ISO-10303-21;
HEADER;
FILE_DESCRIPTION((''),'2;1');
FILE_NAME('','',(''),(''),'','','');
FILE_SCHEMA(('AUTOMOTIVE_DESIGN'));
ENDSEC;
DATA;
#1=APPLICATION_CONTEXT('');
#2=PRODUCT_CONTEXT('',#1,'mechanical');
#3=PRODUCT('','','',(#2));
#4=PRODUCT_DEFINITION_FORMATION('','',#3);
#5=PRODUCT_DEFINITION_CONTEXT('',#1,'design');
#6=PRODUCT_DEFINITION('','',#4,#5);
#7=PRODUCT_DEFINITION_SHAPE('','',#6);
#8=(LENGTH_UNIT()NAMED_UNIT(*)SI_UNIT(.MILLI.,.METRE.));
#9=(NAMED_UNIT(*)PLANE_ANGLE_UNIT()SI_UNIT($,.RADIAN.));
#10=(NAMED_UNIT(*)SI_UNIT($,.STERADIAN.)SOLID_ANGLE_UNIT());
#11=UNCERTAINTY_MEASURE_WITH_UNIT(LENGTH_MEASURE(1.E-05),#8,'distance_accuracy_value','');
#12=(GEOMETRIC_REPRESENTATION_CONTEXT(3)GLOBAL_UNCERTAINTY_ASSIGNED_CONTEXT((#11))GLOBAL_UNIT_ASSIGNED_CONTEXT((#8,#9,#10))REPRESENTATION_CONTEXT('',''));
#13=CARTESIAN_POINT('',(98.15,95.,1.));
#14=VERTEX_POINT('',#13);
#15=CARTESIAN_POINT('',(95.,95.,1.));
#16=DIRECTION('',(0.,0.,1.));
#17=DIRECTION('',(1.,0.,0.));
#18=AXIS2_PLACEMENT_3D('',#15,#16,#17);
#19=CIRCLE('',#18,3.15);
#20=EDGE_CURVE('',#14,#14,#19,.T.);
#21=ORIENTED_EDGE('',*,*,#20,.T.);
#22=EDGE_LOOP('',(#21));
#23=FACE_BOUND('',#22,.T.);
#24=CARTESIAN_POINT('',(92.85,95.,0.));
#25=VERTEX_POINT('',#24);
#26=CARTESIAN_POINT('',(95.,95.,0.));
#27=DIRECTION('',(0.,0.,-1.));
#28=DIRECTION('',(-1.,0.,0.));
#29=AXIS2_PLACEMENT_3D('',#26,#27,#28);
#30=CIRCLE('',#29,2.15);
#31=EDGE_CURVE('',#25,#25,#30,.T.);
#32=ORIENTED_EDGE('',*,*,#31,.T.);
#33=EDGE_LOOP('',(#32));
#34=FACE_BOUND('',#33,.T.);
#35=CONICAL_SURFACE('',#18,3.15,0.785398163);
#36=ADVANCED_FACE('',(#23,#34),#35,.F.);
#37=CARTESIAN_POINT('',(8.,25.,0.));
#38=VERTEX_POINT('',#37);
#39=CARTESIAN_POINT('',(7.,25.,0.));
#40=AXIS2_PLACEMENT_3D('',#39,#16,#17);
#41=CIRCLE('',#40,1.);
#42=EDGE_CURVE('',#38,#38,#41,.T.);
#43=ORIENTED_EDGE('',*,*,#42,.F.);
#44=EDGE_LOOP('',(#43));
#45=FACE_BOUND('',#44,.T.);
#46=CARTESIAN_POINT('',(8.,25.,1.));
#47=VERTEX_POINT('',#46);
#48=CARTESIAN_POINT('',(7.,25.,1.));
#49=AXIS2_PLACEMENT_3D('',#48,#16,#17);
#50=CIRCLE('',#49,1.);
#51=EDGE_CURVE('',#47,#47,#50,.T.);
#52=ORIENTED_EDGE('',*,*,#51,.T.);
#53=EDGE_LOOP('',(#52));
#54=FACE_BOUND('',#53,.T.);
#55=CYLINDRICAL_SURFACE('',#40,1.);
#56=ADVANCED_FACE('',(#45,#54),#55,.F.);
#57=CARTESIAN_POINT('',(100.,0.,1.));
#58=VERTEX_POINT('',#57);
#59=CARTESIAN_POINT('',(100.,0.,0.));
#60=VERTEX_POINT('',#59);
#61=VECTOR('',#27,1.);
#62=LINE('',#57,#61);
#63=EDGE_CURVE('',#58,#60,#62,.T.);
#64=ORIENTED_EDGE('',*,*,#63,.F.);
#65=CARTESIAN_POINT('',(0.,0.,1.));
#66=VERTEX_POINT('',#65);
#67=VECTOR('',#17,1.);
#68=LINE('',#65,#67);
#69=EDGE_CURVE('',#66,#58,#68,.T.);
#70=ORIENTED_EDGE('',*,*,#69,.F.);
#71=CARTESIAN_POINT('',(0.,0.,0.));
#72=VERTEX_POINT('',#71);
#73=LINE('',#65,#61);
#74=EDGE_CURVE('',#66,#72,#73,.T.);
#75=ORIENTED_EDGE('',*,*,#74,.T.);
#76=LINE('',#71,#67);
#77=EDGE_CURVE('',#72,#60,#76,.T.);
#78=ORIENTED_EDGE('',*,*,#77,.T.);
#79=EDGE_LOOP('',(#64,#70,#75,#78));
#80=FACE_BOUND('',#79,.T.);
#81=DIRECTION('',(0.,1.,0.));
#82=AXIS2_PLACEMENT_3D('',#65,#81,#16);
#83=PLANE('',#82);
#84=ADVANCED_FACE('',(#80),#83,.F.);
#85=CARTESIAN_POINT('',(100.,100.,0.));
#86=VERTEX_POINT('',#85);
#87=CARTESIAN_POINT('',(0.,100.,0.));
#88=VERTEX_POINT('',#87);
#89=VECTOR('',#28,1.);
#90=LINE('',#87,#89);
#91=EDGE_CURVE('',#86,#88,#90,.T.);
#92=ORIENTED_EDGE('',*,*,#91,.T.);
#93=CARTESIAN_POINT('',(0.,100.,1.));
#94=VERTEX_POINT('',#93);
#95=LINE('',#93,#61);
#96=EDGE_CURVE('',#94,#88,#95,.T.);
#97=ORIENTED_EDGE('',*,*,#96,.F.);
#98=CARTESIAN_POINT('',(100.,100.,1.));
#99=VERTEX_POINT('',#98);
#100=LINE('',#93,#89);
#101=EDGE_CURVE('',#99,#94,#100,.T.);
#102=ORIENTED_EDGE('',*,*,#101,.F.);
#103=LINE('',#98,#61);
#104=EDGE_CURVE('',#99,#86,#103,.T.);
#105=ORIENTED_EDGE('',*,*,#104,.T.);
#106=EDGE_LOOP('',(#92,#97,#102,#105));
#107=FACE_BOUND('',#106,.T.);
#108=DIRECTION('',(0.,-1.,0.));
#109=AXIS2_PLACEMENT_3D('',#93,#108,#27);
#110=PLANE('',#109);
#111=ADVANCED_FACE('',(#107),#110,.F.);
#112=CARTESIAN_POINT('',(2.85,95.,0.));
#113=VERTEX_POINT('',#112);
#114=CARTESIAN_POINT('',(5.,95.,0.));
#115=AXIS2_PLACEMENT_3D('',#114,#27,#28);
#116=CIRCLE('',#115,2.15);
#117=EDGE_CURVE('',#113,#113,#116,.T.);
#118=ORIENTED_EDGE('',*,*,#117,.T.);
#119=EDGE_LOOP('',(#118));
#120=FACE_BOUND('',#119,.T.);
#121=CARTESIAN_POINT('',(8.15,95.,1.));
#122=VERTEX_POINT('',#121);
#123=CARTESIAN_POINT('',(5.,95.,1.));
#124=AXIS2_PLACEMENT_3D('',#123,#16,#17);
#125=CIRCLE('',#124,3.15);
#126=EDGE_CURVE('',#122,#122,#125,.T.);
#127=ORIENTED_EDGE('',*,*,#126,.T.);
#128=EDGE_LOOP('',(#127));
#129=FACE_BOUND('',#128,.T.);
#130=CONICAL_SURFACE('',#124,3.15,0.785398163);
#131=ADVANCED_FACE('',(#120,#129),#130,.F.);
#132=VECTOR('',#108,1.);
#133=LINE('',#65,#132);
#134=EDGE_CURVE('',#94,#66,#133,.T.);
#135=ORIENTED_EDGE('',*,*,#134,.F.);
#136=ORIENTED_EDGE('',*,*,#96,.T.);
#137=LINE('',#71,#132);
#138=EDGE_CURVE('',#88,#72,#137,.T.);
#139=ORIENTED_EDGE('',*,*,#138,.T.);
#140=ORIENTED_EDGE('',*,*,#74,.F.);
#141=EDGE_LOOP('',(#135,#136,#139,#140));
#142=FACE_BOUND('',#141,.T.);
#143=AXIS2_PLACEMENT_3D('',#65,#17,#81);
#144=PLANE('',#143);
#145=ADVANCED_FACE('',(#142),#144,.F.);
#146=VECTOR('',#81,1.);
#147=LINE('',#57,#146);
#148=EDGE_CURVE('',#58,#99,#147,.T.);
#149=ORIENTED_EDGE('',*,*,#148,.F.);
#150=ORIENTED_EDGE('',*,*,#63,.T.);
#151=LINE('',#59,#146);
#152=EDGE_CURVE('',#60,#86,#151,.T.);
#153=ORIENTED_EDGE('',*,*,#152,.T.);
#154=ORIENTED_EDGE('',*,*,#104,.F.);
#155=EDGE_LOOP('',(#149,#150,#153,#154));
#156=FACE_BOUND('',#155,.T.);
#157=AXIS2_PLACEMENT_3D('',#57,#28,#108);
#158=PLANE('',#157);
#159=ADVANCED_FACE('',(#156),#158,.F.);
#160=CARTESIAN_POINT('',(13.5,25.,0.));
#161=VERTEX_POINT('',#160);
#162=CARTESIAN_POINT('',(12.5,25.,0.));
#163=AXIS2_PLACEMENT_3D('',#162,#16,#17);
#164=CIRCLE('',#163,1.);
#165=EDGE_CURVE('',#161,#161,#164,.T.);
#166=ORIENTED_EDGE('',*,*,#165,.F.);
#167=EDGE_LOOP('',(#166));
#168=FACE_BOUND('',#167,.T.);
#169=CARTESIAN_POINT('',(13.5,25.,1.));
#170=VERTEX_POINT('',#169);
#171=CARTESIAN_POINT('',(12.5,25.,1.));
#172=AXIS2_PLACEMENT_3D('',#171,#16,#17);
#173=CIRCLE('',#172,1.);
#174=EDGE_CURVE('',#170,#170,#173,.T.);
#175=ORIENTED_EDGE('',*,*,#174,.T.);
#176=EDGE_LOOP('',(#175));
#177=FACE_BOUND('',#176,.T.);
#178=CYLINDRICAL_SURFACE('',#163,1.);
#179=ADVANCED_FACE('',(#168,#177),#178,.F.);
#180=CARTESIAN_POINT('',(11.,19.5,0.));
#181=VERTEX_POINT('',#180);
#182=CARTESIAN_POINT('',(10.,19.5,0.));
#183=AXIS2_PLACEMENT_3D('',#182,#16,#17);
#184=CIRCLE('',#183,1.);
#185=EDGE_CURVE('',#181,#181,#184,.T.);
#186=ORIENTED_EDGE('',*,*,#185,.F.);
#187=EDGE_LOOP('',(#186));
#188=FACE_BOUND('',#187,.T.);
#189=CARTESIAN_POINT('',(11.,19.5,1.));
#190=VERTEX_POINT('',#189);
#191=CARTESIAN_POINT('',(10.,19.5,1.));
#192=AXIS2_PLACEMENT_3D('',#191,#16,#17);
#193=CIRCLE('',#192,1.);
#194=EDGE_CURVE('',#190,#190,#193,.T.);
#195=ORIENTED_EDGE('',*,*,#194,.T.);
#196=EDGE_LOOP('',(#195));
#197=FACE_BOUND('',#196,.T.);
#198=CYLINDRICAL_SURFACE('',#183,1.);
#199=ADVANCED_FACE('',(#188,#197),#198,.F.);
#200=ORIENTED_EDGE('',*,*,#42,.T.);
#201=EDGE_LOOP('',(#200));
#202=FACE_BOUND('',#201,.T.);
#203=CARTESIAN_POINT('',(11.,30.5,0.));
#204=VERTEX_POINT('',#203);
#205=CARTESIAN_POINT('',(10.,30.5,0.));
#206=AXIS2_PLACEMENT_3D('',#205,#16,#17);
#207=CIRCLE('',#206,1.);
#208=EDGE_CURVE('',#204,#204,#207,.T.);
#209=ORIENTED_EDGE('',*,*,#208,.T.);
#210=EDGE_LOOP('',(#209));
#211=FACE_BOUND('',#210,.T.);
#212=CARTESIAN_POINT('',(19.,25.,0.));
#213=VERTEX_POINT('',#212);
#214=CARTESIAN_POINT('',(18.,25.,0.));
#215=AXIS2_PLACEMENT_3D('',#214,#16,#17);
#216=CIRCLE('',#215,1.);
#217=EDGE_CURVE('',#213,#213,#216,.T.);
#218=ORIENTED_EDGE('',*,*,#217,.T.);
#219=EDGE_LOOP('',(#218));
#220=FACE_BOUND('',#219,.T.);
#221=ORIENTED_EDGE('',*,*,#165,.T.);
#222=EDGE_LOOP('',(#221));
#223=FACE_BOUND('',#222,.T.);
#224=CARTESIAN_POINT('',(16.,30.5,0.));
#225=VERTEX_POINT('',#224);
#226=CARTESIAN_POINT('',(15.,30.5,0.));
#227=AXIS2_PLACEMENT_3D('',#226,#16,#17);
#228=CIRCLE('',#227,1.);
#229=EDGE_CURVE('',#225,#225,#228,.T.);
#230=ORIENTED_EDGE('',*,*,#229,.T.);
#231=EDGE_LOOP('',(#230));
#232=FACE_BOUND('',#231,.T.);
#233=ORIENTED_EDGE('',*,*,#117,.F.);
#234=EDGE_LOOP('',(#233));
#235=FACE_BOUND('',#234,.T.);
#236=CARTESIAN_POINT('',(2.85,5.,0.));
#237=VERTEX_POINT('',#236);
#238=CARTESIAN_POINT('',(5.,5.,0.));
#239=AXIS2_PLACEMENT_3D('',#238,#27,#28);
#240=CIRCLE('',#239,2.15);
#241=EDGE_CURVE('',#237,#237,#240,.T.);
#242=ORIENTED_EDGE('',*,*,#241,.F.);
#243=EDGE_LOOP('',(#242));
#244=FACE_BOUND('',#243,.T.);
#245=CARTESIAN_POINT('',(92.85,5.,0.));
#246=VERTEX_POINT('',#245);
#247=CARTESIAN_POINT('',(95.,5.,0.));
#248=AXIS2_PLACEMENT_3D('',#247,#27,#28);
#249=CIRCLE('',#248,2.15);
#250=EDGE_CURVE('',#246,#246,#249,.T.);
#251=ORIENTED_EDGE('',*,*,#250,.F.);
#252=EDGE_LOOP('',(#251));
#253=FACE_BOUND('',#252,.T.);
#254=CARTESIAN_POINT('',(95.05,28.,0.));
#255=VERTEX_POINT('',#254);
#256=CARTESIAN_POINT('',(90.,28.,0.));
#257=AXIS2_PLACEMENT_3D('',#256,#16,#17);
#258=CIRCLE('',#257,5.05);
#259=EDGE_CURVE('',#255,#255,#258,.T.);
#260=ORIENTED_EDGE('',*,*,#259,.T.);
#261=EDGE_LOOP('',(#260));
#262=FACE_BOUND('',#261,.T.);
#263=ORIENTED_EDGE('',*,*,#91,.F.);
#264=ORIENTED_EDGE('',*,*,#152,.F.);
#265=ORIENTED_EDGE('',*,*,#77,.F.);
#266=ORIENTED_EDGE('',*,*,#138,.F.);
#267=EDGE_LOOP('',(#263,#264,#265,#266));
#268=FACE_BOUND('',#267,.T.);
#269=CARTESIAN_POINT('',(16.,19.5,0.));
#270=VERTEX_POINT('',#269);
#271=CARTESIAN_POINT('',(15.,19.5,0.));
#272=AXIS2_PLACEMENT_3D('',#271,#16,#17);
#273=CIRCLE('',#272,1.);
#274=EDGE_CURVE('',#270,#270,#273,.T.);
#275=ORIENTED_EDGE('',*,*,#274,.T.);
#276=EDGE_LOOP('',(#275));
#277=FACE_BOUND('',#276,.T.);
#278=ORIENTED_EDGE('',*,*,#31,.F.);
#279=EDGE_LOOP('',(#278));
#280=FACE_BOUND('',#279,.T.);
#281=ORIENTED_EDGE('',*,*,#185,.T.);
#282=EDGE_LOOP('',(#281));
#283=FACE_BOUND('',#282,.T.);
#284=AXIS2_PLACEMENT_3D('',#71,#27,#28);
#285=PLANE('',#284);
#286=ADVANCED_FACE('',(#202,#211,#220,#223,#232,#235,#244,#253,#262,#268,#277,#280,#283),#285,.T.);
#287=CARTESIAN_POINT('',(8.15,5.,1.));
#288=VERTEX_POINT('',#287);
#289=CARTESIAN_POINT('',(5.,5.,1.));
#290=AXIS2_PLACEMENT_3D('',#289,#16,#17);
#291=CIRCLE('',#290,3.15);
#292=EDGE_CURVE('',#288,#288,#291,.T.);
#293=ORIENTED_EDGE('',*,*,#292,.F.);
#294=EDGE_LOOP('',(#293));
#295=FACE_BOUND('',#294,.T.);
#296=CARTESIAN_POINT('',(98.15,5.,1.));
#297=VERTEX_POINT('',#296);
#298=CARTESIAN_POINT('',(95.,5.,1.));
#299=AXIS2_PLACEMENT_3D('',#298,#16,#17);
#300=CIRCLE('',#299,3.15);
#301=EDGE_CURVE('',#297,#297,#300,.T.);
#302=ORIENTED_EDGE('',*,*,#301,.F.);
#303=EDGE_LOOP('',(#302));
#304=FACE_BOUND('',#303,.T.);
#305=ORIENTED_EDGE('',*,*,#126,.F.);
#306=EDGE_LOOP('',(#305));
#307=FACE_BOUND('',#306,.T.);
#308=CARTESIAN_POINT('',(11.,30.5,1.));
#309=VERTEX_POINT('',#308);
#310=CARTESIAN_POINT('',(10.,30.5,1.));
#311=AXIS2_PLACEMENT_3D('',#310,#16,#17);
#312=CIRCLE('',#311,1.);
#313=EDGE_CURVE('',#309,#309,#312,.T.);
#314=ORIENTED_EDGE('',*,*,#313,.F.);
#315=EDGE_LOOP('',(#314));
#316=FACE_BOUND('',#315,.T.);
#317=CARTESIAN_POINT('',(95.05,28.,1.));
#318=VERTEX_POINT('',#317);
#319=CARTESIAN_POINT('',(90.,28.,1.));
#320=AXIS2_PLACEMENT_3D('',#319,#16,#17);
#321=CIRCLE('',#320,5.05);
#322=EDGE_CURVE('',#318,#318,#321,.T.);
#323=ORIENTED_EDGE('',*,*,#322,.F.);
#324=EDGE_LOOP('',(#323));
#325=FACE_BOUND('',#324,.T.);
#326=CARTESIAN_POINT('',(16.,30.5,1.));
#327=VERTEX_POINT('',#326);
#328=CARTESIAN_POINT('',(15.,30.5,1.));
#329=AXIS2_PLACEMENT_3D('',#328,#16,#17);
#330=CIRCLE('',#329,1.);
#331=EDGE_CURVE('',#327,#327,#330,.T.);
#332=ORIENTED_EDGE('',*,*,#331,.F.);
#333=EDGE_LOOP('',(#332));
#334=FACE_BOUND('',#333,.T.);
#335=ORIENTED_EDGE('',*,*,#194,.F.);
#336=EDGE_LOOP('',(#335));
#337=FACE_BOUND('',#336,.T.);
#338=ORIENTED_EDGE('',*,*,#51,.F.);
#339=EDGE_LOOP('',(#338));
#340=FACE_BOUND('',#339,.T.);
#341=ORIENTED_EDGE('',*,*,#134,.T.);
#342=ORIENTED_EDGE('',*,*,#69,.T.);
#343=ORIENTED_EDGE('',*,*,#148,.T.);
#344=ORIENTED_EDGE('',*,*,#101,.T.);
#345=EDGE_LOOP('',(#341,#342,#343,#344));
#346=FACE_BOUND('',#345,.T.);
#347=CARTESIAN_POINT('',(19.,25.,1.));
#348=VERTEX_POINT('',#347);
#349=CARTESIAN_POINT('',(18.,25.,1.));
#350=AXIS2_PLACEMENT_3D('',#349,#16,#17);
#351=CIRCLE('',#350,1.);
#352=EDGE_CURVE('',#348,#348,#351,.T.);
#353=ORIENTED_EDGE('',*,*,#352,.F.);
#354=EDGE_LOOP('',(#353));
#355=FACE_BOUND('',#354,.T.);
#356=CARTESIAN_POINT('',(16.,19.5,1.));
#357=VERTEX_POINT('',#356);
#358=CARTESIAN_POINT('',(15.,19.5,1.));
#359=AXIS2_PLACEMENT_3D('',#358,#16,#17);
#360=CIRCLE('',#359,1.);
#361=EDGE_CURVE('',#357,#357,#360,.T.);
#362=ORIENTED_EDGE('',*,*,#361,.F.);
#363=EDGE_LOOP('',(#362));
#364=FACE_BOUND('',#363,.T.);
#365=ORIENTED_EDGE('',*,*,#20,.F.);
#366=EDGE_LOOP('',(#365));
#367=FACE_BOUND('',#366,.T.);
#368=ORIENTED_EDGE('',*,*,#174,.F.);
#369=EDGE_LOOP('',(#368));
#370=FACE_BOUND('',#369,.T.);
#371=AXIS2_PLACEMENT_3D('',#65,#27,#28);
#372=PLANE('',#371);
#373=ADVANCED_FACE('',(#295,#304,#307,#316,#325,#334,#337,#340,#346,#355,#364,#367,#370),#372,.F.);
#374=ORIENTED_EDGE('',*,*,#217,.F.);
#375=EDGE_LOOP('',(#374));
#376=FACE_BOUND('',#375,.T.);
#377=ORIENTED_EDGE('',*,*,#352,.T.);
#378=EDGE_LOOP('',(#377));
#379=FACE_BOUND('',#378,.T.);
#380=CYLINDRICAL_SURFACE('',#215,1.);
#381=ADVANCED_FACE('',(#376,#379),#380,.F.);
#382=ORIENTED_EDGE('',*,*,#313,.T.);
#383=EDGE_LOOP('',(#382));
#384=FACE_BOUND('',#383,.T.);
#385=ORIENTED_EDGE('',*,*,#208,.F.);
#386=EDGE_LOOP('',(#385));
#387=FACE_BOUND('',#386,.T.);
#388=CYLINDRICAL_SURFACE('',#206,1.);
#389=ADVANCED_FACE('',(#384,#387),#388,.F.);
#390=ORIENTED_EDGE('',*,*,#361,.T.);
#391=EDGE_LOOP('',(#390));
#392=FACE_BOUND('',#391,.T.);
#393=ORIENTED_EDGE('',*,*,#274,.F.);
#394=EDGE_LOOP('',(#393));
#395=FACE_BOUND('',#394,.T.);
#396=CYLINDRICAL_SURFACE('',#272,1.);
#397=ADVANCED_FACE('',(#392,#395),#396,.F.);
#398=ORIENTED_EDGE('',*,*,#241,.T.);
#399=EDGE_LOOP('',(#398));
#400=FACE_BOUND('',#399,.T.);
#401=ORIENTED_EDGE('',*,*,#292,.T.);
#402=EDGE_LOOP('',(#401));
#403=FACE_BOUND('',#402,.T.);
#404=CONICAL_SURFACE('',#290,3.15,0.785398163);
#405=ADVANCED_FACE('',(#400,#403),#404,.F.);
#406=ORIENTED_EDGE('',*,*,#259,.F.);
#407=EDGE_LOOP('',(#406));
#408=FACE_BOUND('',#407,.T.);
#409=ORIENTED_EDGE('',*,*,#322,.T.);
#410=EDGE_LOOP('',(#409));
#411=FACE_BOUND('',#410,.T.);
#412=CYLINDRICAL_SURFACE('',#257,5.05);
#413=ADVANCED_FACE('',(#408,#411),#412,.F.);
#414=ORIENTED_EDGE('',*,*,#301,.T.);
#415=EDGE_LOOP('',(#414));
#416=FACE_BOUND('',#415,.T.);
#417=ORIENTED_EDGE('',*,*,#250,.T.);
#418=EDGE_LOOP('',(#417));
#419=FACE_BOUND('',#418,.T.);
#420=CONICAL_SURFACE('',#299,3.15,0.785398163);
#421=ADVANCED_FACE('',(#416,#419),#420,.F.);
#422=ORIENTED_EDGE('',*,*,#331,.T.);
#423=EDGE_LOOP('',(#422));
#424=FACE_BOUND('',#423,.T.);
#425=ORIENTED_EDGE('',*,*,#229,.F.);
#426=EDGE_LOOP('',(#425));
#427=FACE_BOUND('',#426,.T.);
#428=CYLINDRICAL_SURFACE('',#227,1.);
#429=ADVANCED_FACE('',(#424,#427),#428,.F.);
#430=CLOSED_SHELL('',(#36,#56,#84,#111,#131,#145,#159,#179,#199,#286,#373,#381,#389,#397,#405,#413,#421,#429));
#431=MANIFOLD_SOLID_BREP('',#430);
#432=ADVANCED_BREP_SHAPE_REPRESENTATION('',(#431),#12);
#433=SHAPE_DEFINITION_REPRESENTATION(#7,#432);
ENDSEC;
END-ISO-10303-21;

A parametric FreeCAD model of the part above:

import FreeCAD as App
import Part
import Sketcher

V = App.Vector
Q = App.Units.Quantity


def add_polygon(sketch, points):
    """Adds a closed chain of lines whose ends are joined by coincident constraints."""
    first, n = sketch.GeometryCount, len(points)
    for a, b in zip(points, points[1:] + points[:1]):
        sketch.addGeometry(Part.LineSegment(App.Vector(*a, 0), App.Vector(*b, 0)), False)
    for i in range(n):
        sketch.addConstraint(Sketcher.Constraint("Coincident", first + i, 2, first + (i + 1) % n, 1))

doc = App.newDocument("Part")
params = doc.addObject("Spreadsheet::Sheet", "Params")
for row, (alias, value) in enumerate([
    ("sketch1_width", "100 mm"),
    ("pad1_length", "1 mm"),
    ("sketch2_height", "1 mm"),
    ("sketch2_width", "1.8 mm"),
    ("sketch2_width2", "3.15 mm"),
    ("groove_angle", "360 deg"),
    ("linearpattern_pitch", "90 mm"),
    ("linearpattern2_pitch", "127.279221 mm"),
    ("linearpattern3_pitch", "90 mm"),
    ("sketch3_diameter", "2 mm"),
    ("sketch3_diameter2", "10.1 mm"),
], start=1):
    params.set(f"A{row}", alias)
    params.set(f"B{row}", "=" + value)
    params.setAlias(f"B{row}", alias)

body = doc.addObject("PartDesign::Body", "Body")

# Sketch on XY plane
sketch1 = body.newObject("Sketcher::SketchObject", "Sketch")
sketch1.AttachmentSupport = (doc.getObject("XY_Plane"), [""])
sketch1.MapMode = "FlatFace"
add_polygon(sketch1, [(0, 100), (0, 0), (100, 0), (100, 100)])  # lines 0-3
sketch1.addConstraint([
    Sketcher.Constraint("Vertical", 0),
    Sketcher.Constraint("Horizontal", 1),
    Sketcher.Constraint("Vertical", 2),
    Sketcher.Constraint("Horizontal", 3),
    Sketcher.Constraint("Coincident", 0, 2, -1, 1),
    Sketcher.Constraint("Equal", 3, 0),
    Sketcher.Constraint("DistanceX", 1, 1, 1, 2, 100.0),
])
sketch1.setExpression("Constraints[10]", "Params.sketch1_width")
pad1 = body.newObject("PartDesign::Pad", "Pad")
pad1.Profile = sketch1
pad1.setExpression("Length", "Params.pad1_length")

# Sketch on YZ plane
sketch2 = body.newObject("Sketcher::SketchObject", "Sketch001")
sketch2.AttachmentSupport = (doc.getObject("YZ_Plane"), [""])
sketch2.MapMode = "FlatFace"
sketch2.AttachmentOffset = App.Placement(V(0, 0, 5), App.Rotation())
add_polygon(sketch2, [(95, 0), (95, 1), (91.85, 1), (93.2, -0.35), (93.2, 0)])  # lines 0-4
sketch2.addGeometry(Part.LineSegment(V(95, 1, 0), V(95, -0.35, 0)), True)  # axis
sketch2.addConstraint([
    Sketcher.Constraint("Vertical", 0),
    Sketcher.Constraint("Horizontal", 1),
    Sketcher.Constraint("Vertical", 3),
    Sketcher.Constraint("Horizontal", 4),
    Sketcher.Constraint("Vertical", 5),
    Sketcher.Constraint("Coincident", 5, 1, 0, 2),
    Sketcher.Constraint("PointOnObject", 3, 2, -1),
    Sketcher.Constraint("Horizontal", 2, 2, 5, 2),
    Sketcher.Constraint("DistanceY", 0, 1, 0, 2, 1.0),
    Sketcher.Constraint("Angle", 2, Q("-45 deg")),
    Sketcher.Constraint("DistanceX", 4, 1, 4, 2, 1.8),
    Sketcher.Constraint("DistanceX", -1, 1, 0, 2, 95.0),
    Sketcher.Constraint("DistanceX", 1, 2, 1, 1, 3.15),
])
sketch2.setExpression("Constraints[13]", "Params.sketch2_height")
sketch2.setExpression("Constraints[15]", "Params.sketch2_width")
sketch2.setExpression("Constraints[17]", "Params.sketch2_width2")
groove = body.newObject("PartDesign::Groove", "Groove")
groove.Profile = sketch2
groove.ReferenceAxis = (sketch2, ["Axis0"])
groove.setExpression("Angle", "Params.groove_angle")
doc.recompute()

linearpattern = body.newObject("PartDesign::LinearPattern", "LinearPattern")
linearpattern.Originals = [groove]
linearpattern.Direction = (doc.getObject("X_Axis"), [""])
linearpattern.Mode = "offset"
linearpattern.setExpression("Offset", "Params.linearpattern_pitch")
linearpattern.Occurrences = 2
body.Tip = linearpattern
doc.recompute()

datumline = body.newObject("PartDesign::Line", "DatumLine")
datumline.Placement = App.Placement(V(0, 0, 0), App.Rotation(V(0, 0, 1), V(0.707106781, -0.707106781, 0)))
linearpattern2 = body.newObject("PartDesign::LinearPattern", "LinearPattern001")
linearpattern2.Originals = [groove]
linearpattern2.Direction = (datumline, [""])
linearpattern2.Mode = "offset"
linearpattern2.setExpression("Offset", "Params.linearpattern2_pitch")
linearpattern2.Occurrences = 2
body.Tip = linearpattern2
doc.recompute()

linearpattern3 = body.newObject("PartDesign::LinearPattern", "LinearPattern002")
linearpattern3.Originals = [groove]
linearpattern3.Direction = (doc.getObject("Y_Axis"), [""])
linearpattern3.Mode = "offset"
linearpattern3.setExpression("Offset", "Params.linearpattern3_pitch")
linearpattern3.Occurrences = 2
linearpattern3.Reversed = True
body.Tip = linearpattern3

# Sketch on XY plane
sketch3 = body.newObject("Sketcher::SketchObject", "Sketch002")
sketch3.AttachmentSupport = (doc.getObject("XY_Plane"), [""])
sketch3.MapMode = "FlatFace"
sketch3.AttachmentOffset = App.Placement(V(0, 0, 1), App.Rotation())
sketch3.addGeometry([
    Part.Circle(V(90, 28, 0), V(0, 0, 1), 5),  # 0
    Part.Circle(V(12.5, 25, 0), V(0, 0, 1), 1),  # 1
    Part.Circle(V(10, 19.5, 0), V(0, 0, 1), 1),  # 2
    Part.Circle(V(7, 25, 0), V(0, 0, 1), 1),  # 3
    Part.Circle(V(18, 25, 0), V(0, 0, 1), 1),  # 4
    Part.Circle(V(10, 30.5, 0), V(0, 0, 1), 1),  # 5
    Part.Circle(V(15, 30.5, 0), V(0, 0, 1), 1),  # 6
    Part.Circle(V(15, 19.5, 0), V(0, 0, 1), 1),  # 7
], False)
sketch3.addConstraint([
    Sketcher.Constraint("Equal", 1, 2),
    Sketcher.Constraint("Equal", 2, 3),
    Sketcher.Constraint("Equal", 3, 4),
    Sketcher.Constraint("Equal", 4, 5),
    Sketcher.Constraint("Equal", 5, 6),
    Sketcher.Constraint("Equal", 6, 7),
    Sketcher.Constraint("Horizontal", 1, 3, 3, 3),
    Sketcher.Constraint("Horizontal", 3, 3, 4, 3),
    Sketcher.Constraint("Horizontal", 5, 3, 6, 3),
    Sketcher.Constraint("Horizontal", 2, 3, 7, 3),
    Sketcher.Constraint("Vertical", 2, 3, 5, 3),
    Sketcher.Constraint("Vertical", 6, 3, 7, 3),
    Sketcher.Constraint("Diameter", 1, 2.0),
    Sketcher.Constraint("Diameter", 0, 10.1),
    Sketcher.Constraint("DistanceX", -1, 1, 0, 3, 90.0),
    Sketcher.Constraint("DistanceY", -1, 1, 0, 3, 28.0),
    Sketcher.Constraint("DistanceY", -1, 1, 1, 3, 25.0),
    Sketcher.Constraint("DistanceX", -1, 1, 2, 3, 10.0),
    Sketcher.Constraint("DistanceX", -1, 1, 3, 3, 7.0),
    Sketcher.Constraint("DistanceX", -1, 1, 4, 3, 18.0),
    Sketcher.Constraint("DistanceX", -1, 1, 6, 3, 15.0),
    Sketcher.Constraint("DistanceY", 2, 3, 5, 3, 11.0),
    Sketcher.Constraint("DistanceX", -1, 1, 1, 3, 12.5),
    Sketcher.Constraint("DistanceY", -1, 1, 2, 3, 19.5),
])
sketch3.setExpression("Constraints[12]", "Params.sketch3_diameter")
sketch3.setExpression("Constraints[13]", "Params.sketch3_diameter2")
pocket1 = body.newObject("PartDesign::Pocket", "Pocket")
pocket1.Profile = sketch3
pocket1.Type = "ThroughAll"

doc.recompute()
